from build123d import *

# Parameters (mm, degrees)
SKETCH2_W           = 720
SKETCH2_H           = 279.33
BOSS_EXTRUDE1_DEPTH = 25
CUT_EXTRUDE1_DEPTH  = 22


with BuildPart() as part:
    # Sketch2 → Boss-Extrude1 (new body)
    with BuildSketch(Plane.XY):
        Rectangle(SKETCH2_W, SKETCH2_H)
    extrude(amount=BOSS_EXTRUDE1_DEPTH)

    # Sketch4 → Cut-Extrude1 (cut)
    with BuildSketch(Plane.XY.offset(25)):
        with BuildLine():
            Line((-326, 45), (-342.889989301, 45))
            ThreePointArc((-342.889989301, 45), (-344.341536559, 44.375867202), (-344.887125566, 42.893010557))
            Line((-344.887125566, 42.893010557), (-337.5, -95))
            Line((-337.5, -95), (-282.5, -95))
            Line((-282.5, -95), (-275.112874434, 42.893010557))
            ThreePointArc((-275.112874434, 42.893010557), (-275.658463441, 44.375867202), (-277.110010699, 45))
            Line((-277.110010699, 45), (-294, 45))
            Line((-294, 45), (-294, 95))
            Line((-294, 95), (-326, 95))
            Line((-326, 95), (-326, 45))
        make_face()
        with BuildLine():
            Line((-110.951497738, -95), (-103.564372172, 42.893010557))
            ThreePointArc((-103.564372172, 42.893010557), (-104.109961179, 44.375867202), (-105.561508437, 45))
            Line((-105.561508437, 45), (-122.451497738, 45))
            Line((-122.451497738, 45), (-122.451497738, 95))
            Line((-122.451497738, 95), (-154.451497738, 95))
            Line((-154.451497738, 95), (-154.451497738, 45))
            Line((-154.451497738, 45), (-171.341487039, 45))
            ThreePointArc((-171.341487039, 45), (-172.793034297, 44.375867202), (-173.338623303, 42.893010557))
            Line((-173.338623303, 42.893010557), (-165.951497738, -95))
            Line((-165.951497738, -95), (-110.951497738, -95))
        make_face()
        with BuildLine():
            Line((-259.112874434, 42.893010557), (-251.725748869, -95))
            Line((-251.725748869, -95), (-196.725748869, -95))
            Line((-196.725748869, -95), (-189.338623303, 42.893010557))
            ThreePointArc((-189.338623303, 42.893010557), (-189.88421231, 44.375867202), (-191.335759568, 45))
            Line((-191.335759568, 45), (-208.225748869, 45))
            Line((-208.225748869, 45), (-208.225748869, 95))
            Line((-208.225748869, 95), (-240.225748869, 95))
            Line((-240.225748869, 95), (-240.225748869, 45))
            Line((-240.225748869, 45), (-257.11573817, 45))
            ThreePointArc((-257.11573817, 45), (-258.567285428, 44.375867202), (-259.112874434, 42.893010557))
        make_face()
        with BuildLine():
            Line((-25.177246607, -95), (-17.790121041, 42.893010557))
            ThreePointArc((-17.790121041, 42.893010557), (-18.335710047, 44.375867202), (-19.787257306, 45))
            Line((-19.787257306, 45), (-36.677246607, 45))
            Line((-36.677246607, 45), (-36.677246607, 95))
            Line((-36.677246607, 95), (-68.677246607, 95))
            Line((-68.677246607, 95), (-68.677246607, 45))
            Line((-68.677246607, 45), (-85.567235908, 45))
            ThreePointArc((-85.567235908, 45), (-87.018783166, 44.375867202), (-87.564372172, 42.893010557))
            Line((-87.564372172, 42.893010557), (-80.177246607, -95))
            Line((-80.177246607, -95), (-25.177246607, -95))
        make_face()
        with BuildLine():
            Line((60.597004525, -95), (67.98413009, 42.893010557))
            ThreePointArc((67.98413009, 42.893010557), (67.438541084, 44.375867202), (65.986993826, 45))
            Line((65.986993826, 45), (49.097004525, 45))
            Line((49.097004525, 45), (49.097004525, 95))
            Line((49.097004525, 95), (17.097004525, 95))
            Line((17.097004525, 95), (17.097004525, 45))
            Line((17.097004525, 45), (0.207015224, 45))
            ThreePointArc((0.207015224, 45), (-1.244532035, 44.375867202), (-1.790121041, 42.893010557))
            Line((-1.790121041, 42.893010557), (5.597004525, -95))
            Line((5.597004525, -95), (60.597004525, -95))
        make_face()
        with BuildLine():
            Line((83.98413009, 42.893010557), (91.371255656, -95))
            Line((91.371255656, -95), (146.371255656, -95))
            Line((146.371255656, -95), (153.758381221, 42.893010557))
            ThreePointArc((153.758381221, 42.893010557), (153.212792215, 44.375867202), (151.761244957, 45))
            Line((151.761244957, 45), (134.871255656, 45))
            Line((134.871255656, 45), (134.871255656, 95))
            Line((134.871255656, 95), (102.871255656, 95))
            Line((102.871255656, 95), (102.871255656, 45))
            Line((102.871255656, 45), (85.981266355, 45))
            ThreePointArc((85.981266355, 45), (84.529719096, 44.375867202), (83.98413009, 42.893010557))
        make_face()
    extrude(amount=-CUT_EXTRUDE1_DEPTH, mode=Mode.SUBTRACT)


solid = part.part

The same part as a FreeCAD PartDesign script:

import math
import FreeCAD as App
import Part
import Sketcher
Q = App.Units.Quantity

doc = App.newDocument("Part")
params = doc.addObject("Spreadsheet::Sheet", "Params")
for row, (alias, value) in enumerate([
    ("sketch1_width", "720 mm"),
    ("sketch1_height", "279.33 mm"),
    ("pad1_length", "25 mm"),
    ("sketch2_radius", "2 mm"),
    ("sketch2_width", "55 mm"),
    ("sketch2_width2", "32 mm"),
    ("sketch2_height", "50 mm"),
    ("pocket1_length", "22 mm"),
], start=1):
    params.set(f"A{row}", alias)
    params.set(f"B{row}", "=" + value)
    params.setAlias(f"B{row}", alias)

body = doc.addObject("PartDesign::Body", "Body")

sketch1 = body.newObject("Sketcher::SketchObject", "Sketch")
sketch1.AttachmentSupport = (doc.getObject("XY_Plane"), [""])
sketch1.MapMode = "FlatFace"
sketch1.addGeometry([
    Part.LineSegment(App.Vector(-360, 139.665, 0), App.Vector(-360, -139.665, 0)),
    Part.LineSegment(App.Vector(-360, -139.665, 0), App.Vector(360, -139.665, 0)),
    Part.LineSegment(App.Vector(360, -139.665, 0), App.Vector(360, 139.665, 0)),
    Part.LineSegment(App.Vector(360, 139.665, 0), App.Vector(-360, 139.665, 0)),
], False)
sketch1.addConstraint([
    Sketcher.Constraint("Coincident", 0, 2, 1, 1),
    Sketcher.Constraint("Coincident", 1, 2, 2, 1),
    Sketcher.Constraint("Coincident", 2, 2, 3, 1),
    Sketcher.Constraint("Coincident", 3, 2, 0, 1),
    Sketcher.Constraint("Vertical", 0),
    Sketcher.Constraint("Horizontal", 1),
    Sketcher.Constraint("Vertical", 2),
    Sketcher.Constraint("Horizontal", 3),
    Sketcher.Constraint("Symmetric", 0, 2, 2, 2, -1, 1),
    Sketcher.Constraint("DistanceX", 1, 1, 1, 2, Q("720 mm")),
    Sketcher.Constraint("DistanceY", 0, 2, 0, 1, Q("279.33 mm")),
])
sketch1.setExpression("Constraints[9]", "Params.sketch1_width")
sketch1.setExpression("Constraints[10]", "Params.sketch1_height")
pad1 = body.newObject("PartDesign::Pad", "Pad")
pad1.Profile = sketch1
pad1.setExpression("Length", "Params.pad1_length")

sketch2 = body.newObject("Sketcher::SketchObject", "Sketch001")
sketch2.AttachmentSupport = (doc.getObject("XY_Plane"), [""])
sketch2.MapMode = "FlatFace"
sketch2.AttachmentOffset = App.Placement(App.Vector(0, 0, 25), App.Rotation())
sketch2.addGeometry([
    Part.LineSegment(App.Vector(-326, 45, 0), App.Vector(-342.889989, 45, 0)),
    Part.ArcOfCircle(Part.Circle(App.Vector(-342.889989, 43, 0), App.Vector(0, 0, 1), 2), math.radians(90), math.radians(183.066485)),
    Part.LineSegment(App.Vector(-344.887126, 42.893011, 0), App.Vector(-337.5, -95, 0)),
    Part.LineSegment(App.Vector(-337.5, -95, 0), App.Vector(-282.5, -95, 0)),
    Part.LineSegment(App.Vector(-282.5, -95, 0), App.Vector(-275.112874, 42.893011, 0)),
    Part.ArcOfCircle(Part.Circle(App.Vector(-277.110011, 43, 0), App.Vector(0, 0, 1), 2), math.radians(-3.066485), math.radians(90)),
    Part.LineSegment(App.Vector(-277.110011, 45, 0), App.Vector(-294, 45, 0)),
    Part.LineSegment(App.Vector(-294, 45, 0), App.Vector(-294, 95, 0)),
    Part.LineSegment(App.Vector(-294, 95, 0), App.Vector(-326, 95, 0)),
    Part.LineSegment(App.Vector(-326, 95, 0), App.Vector(-326, 45, 0)),
    Part.LineSegment(App.Vector(-110.951498, -95, 0), App.Vector(-103.564372, 42.893011, 0)),
    Part.ArcOfCircle(Part.Circle(App.Vector(-105.561508, 43, 0), App.Vector(0, 0, 1), 2), math.radians(-3.066485), math.radians(90)),
    Part.LineSegment(App.Vector(-105.561508, 45, 0), App.Vector(-122.451498, 45, 0)),
    Part.LineSegment(App.Vector(-122.451498, 45, 0), App.Vector(-122.451498, 95, 0)),
    Part.LineSegment(App.Vector(-122.451498, 95, 0), App.Vector(-154.451498, 95, 0)),
    Part.LineSegment(App.Vector(-154.451498, 95, 0), App.Vector(-154.451498, 45, 0)),
    Part.LineSegment(App.Vector(-154.451498, 45, 0), App.Vector(-171.341487, 45, 0)),
    Part.ArcOfCircle(Part.Circle(App.Vector(-171.341487, 43, 0), App.Vector(0, 0, 1), 2), math.radians(90), math.radians(183.066486)),
    Part.LineSegment(App.Vector(-173.338623, 42.893011, 0), App.Vector(-165.951498, -95, 0)),
    Part.LineSegment(App.Vector(-165.951498, -95, 0), App.Vector(-110.951498, -95, 0)),
    Part.LineSegment(App.Vector(-259.112874, 42.893011, 0), App.Vector(-251.725749, -95, 0)),
    Part.LineSegment(App.Vector(-251.725749, -95, 0), App.Vector(-196.725749, -95, 0)),
    Part.LineSegment(App.Vector(-196.725749, -95, 0), App.Vector(-189.338623, 42.893011, 0)),
    Part.ArcOfCircle(Part.Circle(App.Vector(-191.33576, 43, 0), App.Vector(0, 0, 1), 2), math.radians(-3.066485), math.radians(90)),
    Part.LineSegment(App.Vector(-191.33576, 45, 0), App.Vector(-208.225749, 45, 0)),
    Part.LineSegment(App.Vector(-208.225749, 45, 0), App.Vector(-208.225749, 95, 0)),
    Part.LineSegment(App.Vector(-208.225749, 95, 0), App.Vector(-240.225749, 95, 0)),
    Part.LineSegment(App.Vector(-240.225749, 95, 0), App.Vector(-240.225749, 45, 0)),
    Part.LineSegment(App.Vector(-240.225749, 45, 0), App.Vector(-257.115738, 45, 0)),
    Part.ArcOfCircle(Part.Circle(App.Vector(-257.115738, 43, 0), App.Vector(0, 0, 1), 2), math.radians(90), math.radians(183.066486)),
    Part.LineSegment(App.Vector(-25.177247, -95, 0), App.Vector(-17.790121, 42.893011, 0)),
    Part.ArcOfCircle(Part.Circle(App.Vector(-19.787257, 43, 0), App.Vector(0, 0, 1), 2), math.radians(-3.066486), math.radians(90)),
    Part.LineSegment(App.Vector(-19.787257, 45, 0), App.Vector(-36.677247, 45, 0)),
    Part.LineSegment(App.Vector(-36.677247, 45, 0), App.Vector(-36.677247, 95, 0)),
    Part.LineSegment(App.Vector(-36.677247, 95, 0), App.Vector(-68.677247, 95, 0)),
    Part.LineSegment(App.Vector(-68.677247, 95, 0), App.Vector(-68.677247, 45, 0)),
    Part.LineSegment(App.Vector(-68.677247, 45, 0), App.Vector(-85.567236, 45, 0)),
    Part.ArcOfCircle(Part.Circle(App.Vector(-85.567236, 43, 0), App.Vector(0, 0, 1), 2), math.radians(90), math.radians(183.066486)),
    Part.LineSegment(App.Vector(-87.564372, 42.893011, 0), App.Vector(-80.177247, -95, 0)),
    Part.LineSegment(App.Vector(-80.177247, -95, 0), App.Vector(-25.177247, -95, 0)),
    Part.LineSegment(App.Vector(60.597005, -95, 0), App.Vector(67.98413, 42.893011, 0)),
    Part.ArcOfCircle(Part.Circle(App.Vector(65.986994, 43, 0), App.Vector(0, 0, 1), 2), math.radians(-3.066486), math.radians(90)),
    Part.LineSegment(App.Vector(65.986994, 45, 0), App.Vector(49.097005, 45, 0)),
    Part.LineSegment(App.Vector(49.097005, 45, 0), App.Vector(49.097005, 95, 0)),
    Part.LineSegment(App.Vector(49.097005, 95, 0), App.Vector(17.097005, 95, 0)),
    Part.LineSegment(App.Vector(17.097005, 95, 0), App.Vector(17.097005, 45, 0)),
    Part.LineSegment(App.Vector(17.097005, 45, 0), App.Vector(0.207015, 45, 0)),
    Part.ArcOfCircle(Part.Circle(App.Vector(0.207015, 43, 0), App.Vector(0, 0, 1), 2), math.radians(90), math.radians(183.066486)),
    Part.LineSegment(App.Vector(-1.790121, 42.893011, 0), App.Vector(5.597005, -95, 0)),
    Part.LineSegment(App.Vector(5.597005, -95, 0), App.Vector(60.597005, -95, 0)),
    Part.LineSegment(App.Vector(83.98413, 42.893011, 0), App.Vector(91.371256, -95, 0)),
    Part.LineSegment(App.Vector(91.371256, -95, 0), App.Vector(146.371256, -95, 0)),
    Part.LineSegment(App.Vector(146.371256, -95, 0), App.Vector(153.758381, 42.893011, 0)),
    Part.ArcOfCircle(Part.Circle(App.Vector(151.761245, 43, 0), App.Vector(0, 0, 1), 2), math.radians(-3.066486), math.radians(90)),
    Part.LineSegment(App.Vector(151.761245, 45, 0), App.Vector(134.871256, 45, 0)),
    Part.LineSegment(App.Vector(134.871256, 45, 0), App.Vector(134.871256, 95, 0)),
    Part.LineSegment(App.Vector(134.871256, 95, 0), App.Vector(102.871256, 95, 0)),
    Part.LineSegment(App.Vector(102.871256, 95, 0), App.Vector(102.871256, 45, 0)),
    Part.LineSegment(App.Vector(102.871256, 45, 0), App.Vector(85.981266, 45, 0)),
    Part.ArcOfCircle(Part.Circle(App.Vector(85.981266, 43, 0), App.Vector(0, 0, 1), 2), math.radians(90), math.radians(183.066486)),
], False)
sketch2.addConstraint([
    Sketcher.Constraint("Tangent", 0, 2, 1, 1),
    Sketcher.Constraint("Tangent", 1, 2, 2, 1),
    Sketcher.Constraint("Coincident", 2, 2, 3, 1),
    Sketcher.Constraint("Coincident", 3, 2, 4, 1),
    Sketcher.Constraint("Tangent", 4, 2, 5, 1),
    Sketcher.Constraint("Tangent", 5, 2, 6, 1),
    Sketcher.Constraint("Coincident", 6, 2, 7, 1),
    Sketcher.Constraint("Coincident", 7, 2, 8, 1),
    Sketcher.Constraint("Coincident", 8, 2, 9, 1),
    Sketcher.Constraint("Coincident", 9, 2, 0, 1),
    Sketcher.Constraint("Tangent", 10, 2, 11, 1),
    Sketcher.Constraint("Tangent", 11, 2, 12, 1),
    Sketcher.Constraint("Coincident", 12, 2, 13, 1),
    Sketcher.Constraint("Coincident", 13, 2, 14, 1),
    Sketcher.Constraint("Coincident", 14, 2, 15, 1),
    Sketcher.Constraint("Coincident", 15, 2, 16, 1),
    Sketcher.Constraint("Tangent", 16, 2, 17, 1),
    Sketcher.Constraint("Tangent", 17, 2, 18, 1),
    Sketcher.Constraint("Coincident", 18, 2, 19, 1),
    Sketcher.Constraint("Coincident", 19, 2, 10, 1),
    Sketcher.Constraint("Coincident", 20, 2, 21, 1),
    Sketcher.Constraint("Coincident", 21, 2, 22, 1),
    Sketcher.Constraint("Tangent", 22, 2, 23, 1),
    Sketcher.Constraint("Tangent", 23, 2, 24, 1),
    Sketcher.Constraint("Coincident", 24, 2, 25, 1),
    Sketcher.Constraint("Coincident", 25, 2, 26, 1),
    Sketcher.Constraint("Coincident", 26, 2, 27, 1),
    Sketcher.Constraint("Coincident", 27, 2, 28, 1),
    Sketcher.Constraint("Tangent", 28, 2, 29, 1),
    Sketcher.Constraint("Tangent", 29, 2, 20, 1),
    Sketcher.Constraint("Tangent", 30, 2, 31, 1),
    Sketcher.Constraint("Tangent", 31, 2, 32, 1),
    Sketcher.Constraint("Coincident", 32, 2, 33, 1),
    Sketcher.Constraint("Coincident", 33, 2, 34, 1),
    Sketcher.Constraint("Coincident", 34, 2, 35, 1),
    Sketcher.Constraint("Coincident", 35, 2, 36, 1),
    Sketcher.Constraint("Tangent", 36, 2, 37, 1),
    Sketcher.Constraint("Tangent", 37, 2, 38, 1),
    Sketcher.Constraint("Coincident", 38, 2, 39, 1),
    Sketcher.Constraint("Coincident", 39, 2, 30, 1),
    Sketcher.Constraint("Tangent", 40, 2, 41, 1),
    Sketcher.Constraint("Tangent", 41, 2, 42, 1),
    Sketcher.Constraint("Coincident", 42, 2, 43, 1),
    Sketcher.Constraint("Coincident", 43, 2, 44, 1),
    Sketcher.Constraint("Coincident", 44, 2, 45, 1),
    Sketcher.Constraint("Coincident", 45, 2, 46, 1),
    Sketcher.Constraint("Tangent", 46, 2, 47, 1),
    Sketcher.Constraint("Tangent", 47, 2, 48, 1),
    Sketcher.Constraint("Coincident", 48, 2, 49, 1),
    Sketcher.Constraint("Coincident", 49, 2, 40, 1),
    Sketcher.Constraint("Coincident", 50, 2, 51, 1),
    Sketcher.Constraint("Coincident", 51, 2, 52, 1),
    Sketcher.Constraint("Tangent", 52, 2, 53, 1),
    Sketcher.Constraint("Tangent", 53, 2, 54, 1),
    Sketcher.Constraint("Coincident", 54, 2, 55, 1),
    Sketcher.Constraint("Coincident", 55, 2, 56, 1),
    Sketcher.Constraint("Coincident", 56, 2, 57, 1),
    Sketcher.Constraint("Coincident", 57, 2, 58, 1),
    Sketcher.Constraint("Tangent", 58, 2, 59, 1),
    Sketcher.Constraint("Tangent", 59, 2, 50, 1),
    Sketcher.Constraint("Horizontal", 0),
    Sketcher.Constraint("Horizontal", 3),
    Sketcher.Constraint("Horizontal", 6),
    Sketcher.Constraint("Vertical", 7),
    Sketcher.Constraint("Horizontal", 8),
    Sketcher.Constraint("Vertical", 9),
    Sketcher.Constraint("Horizontal", 12),
    Sketcher.Constraint("Vertical", 13),
    Sketcher.Constraint("Horizontal", 14),
    Sketcher.Constraint("Vertical", 15),
    Sketcher.Constraint("Horizontal", 16),
    Sketcher.Constraint("Horizontal", 19),
    Sketcher.Constraint("Horizontal", 21),
    Sketcher.Constraint("Horizontal", 24),
    Sketcher.Constraint("Vertical", 25),
    Sketcher.Constraint("Horizontal", 26),
    Sketcher.Constraint("Vertical", 27),
    Sketcher.Constraint("Horizontal", 28),
    Sketcher.Constraint("Horizontal", 32),
    Sketcher.Constraint("Vertical", 33),
    Sketcher.Constraint("Horizontal", 34),
    Sketcher.Constraint("Vertical", 35),
    Sketcher.Constraint("Horizontal", 36),
    Sketcher.Constraint("Horizontal", 39),
    Sketcher.Constraint("Horizontal", 42),
    Sketcher.Constraint("Vertical", 43),
    Sketcher.Constraint("Horizontal", 44),
    Sketcher.Constraint("Vertical", 45),
    Sketcher.Constraint("Horizontal", 46),
    Sketcher.Constraint("Horizontal", 49),
    Sketcher.Constraint("Horizontal", 51),
    Sketcher.Constraint("Horizontal", 54),
    Sketcher.Constraint("Vertical", 55),
    Sketcher.Constraint("Horizontal", 56),
    Sketcher.Constraint("Vertical", 57),
    Sketcher.Constraint("Horizontal", 58),
    Sketcher.Constraint("Equal", 1, 5),
    Sketcher.Constraint("Equal", 5, 11),
    Sketcher.Constraint("Equal", 11, 17),
    Sketcher.Constraint("Equal", 17, 23),
    Sketcher.Constraint("Equal", 23, 29),
    Sketcher.Constraint("Equal", 29, 31),
    Sketcher.Constraint("Equal", 31, 37),
    Sketcher.Constraint("Equal", 37, 41),
    Sketcher.Constraint("Equal", 41, 47),
    Sketcher.Constraint("Equal", 47, 53),
    Sketcher.Constraint("Equal", 53, 59),
    Sketcher.Constraint("Parallel", 4, 10),
    Sketcher.Constraint("Parallel", 2, 18),
    Sketcher.Constraint("Parallel", 18, 20),
    Sketcher.Constraint("Parallel", 10, 22),
    Sketcher.Constraint("Parallel", 22, 30),
    Sketcher.Constraint("Parallel", 20, 38),
    Sketcher.Constraint("Parallel", 30, 40),
    Sketcher.Constraint("Parallel", 38, 48),
    Sketcher.Constraint("Parallel", 48, 50),
    Sketcher.Constraint("Parallel", 40, 52),
    Sketcher.Constraint("Horizontal", 1, 3, 5, 3),
    Sketcher.Constraint("Horizontal", 5, 3, 11, 3),
    Sketcher.Constraint("Horizontal", 11, 3, 17, 3),
    Sketcher.Constraint("Horizontal", 17, 3, 23, 3),
    Sketcher.Constraint("Horizontal", 23, 3, 29, 3),
    Sketcher.Constraint("Horizontal", 29, 3, 31, 3),
    Sketcher.Constraint("Horizontal", 31, 3, 37, 3),
    Sketcher.Constraint("Horizontal", 37, 3, 41, 3),
    Sketcher.Constraint("Horizontal", 41, 3, 47, 3),
    Sketcher.Constraint("Horizontal", 47, 3, 53, 3),
    Sketcher.Constraint("Horizontal", 53, 3, 59, 3),
    Sketcher.Constraint("Horizontal", 1, 2, 4, 2),
    Sketcher.Constraint("Horizontal", 8, 2, 13, 2),
    Sketcher.Constraint("Horizontal", 3, 2, 18, 2),
    Sketcher.Constraint("Horizontal", 19, 2, 20, 2),
    Sketcher.Constraint("Horizontal", 14, 2, 25, 2),
    Sketcher.Constraint("Horizontal", 26, 2, 33, 2),
    Sketcher.Constraint("Horizontal", 21, 2, 38, 2),
    Sketcher.Constraint("Horizontal", 34, 2, 43, 2),
    Sketcher.Constraint("Horizontal", 39, 2, 48, 2),
    Sketcher.Constraint("Horizontal", 49, 2, 50, 2),
    Sketcher.Constraint("Horizontal", 44, 2, 55, 2),
    Sketcher.Constraint("Equal", 0, 6),
    Sketcher.Constraint("Equal", 6, 12),
    Sketcher.Constraint("Equal", 8, 14),
    Sketcher.Constraint("Equal", 12, 16),
    Sketcher.Constraint("Equal", 19, 21),
    Sketcher.Constraint("Equal", 16, 24),
    Sketcher.Constraint("Equal", 14, 26),
    Sketcher.Constraint("Equal", 28, 32),
    Sketcher.Constraint("Equal", 26, 34),
    Sketcher.Constraint("Equal", 32, 36),
    Sketcher.Constraint("Equal", 36, 42),
    Sketcher.Constraint("Equal", 34, 44),
    Sketcher.Constraint("Equal", 42, 46),
    Sketcher.Constraint("Equal", 49, 51),
    Sketcher.Constraint("Equal", 46, 54),
    Sketcher.Constraint("Equal", 44, 56),
    Sketcher.Constraint("Radius", 1, Q("2 mm")),
    Sketcher.Constraint("DistanceX", 3, 1, 3, 2, Q("55 mm")),
    Sketcher.Constraint("DistanceX", 8, 2, 8, 1, Q("32 mm")),
    Sketcher.Constraint("DistanceY", 7, 1, 7, 2, Q("50 mm")),
    Sketcher.Constraint("DistanceY", -1, 1, 1, 3, Q("43 mm")),
    Sketcher.Constraint("DistanceY", 2, 2, -1, 1, Q("95 mm")),
    Sketcher.Constraint("DistanceX", 6, 2, -1, 1, Q("294 mm")),
    Sketcher.Constraint("DistanceX", 0, 2, 0, 1, Q("16.889989 mm")),
    Sketcher.Constraint("DistanceX", 11, 3, -1, 1, Q("105.561508 mm")),
    Sketcher.Constraint("DistanceX", 23, 3, -1, 1, Q("191.33576 mm")),
    Sketcher.Constraint("DistanceX", 30, 2, -1, 1, Q("17.790121 mm")),
    Sketcher.Constraint("DistanceX", -1, 1, 40, 2, Q("67.98413 mm")),
    Sketcher.Constraint("DistanceX", -1, 1, 52, 2, Q("153.758381 mm")),
])
sketch2.setExpression("Constraints[155]", "Params.sketch2_radius")
sketch2.setExpression("Constraints[156]", "Params.sketch2_width")
sketch2.setExpression("Constraints[157]", "Params.sketch2_width2")
sketch2.setExpression("Constraints[158]", "Params.sketch2_height")
pocket1 = body.newObject("PartDesign::Pocket", "Pocket")
pocket1.Profile = sketch2
pocket1.setExpression("Length", "Params.pocket1_length")

doc.recompute()
